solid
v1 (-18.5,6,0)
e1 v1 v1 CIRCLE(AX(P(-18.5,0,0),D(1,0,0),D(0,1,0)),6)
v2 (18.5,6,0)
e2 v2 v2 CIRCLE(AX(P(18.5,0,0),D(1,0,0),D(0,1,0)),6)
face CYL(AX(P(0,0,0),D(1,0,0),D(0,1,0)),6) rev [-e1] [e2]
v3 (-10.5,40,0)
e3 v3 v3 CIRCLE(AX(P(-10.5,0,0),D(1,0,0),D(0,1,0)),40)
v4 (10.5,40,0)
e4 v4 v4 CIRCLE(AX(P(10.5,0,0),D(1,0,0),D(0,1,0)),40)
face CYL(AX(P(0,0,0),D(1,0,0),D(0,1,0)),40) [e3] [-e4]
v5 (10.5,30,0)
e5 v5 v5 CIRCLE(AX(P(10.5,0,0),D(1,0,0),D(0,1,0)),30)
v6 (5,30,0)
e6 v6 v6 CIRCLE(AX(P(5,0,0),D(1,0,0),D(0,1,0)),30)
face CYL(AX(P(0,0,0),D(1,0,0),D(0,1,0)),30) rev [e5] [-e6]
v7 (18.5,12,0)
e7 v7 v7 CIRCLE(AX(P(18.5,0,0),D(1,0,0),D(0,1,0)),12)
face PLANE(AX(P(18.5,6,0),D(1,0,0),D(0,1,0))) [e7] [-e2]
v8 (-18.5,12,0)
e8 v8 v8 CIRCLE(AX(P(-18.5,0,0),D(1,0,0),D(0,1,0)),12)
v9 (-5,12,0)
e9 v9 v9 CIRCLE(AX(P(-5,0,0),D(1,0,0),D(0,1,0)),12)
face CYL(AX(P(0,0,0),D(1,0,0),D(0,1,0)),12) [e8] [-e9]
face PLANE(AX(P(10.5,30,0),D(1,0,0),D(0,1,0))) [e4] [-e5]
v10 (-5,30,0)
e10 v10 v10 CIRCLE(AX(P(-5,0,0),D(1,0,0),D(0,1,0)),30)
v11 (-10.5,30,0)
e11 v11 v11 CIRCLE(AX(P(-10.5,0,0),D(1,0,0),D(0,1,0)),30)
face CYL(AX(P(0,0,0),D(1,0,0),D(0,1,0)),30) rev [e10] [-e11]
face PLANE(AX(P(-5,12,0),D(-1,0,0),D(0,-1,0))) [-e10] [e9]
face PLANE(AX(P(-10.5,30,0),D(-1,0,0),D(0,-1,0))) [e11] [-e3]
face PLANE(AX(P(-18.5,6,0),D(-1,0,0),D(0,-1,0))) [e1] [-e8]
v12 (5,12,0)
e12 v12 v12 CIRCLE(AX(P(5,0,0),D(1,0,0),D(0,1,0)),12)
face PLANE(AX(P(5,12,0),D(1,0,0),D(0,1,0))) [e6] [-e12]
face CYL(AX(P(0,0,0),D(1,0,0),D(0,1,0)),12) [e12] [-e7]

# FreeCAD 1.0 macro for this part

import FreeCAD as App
import Part
import Sketcher

doc = App.newDocument("Part")
body = doc.addObject("PartDesign::Body", "Body")

sketch1 = body.newObject("Sketcher::SketchObject", "Sketch")
sketch1.AttachmentSupport = (doc.getObject("XY_Plane"), [""])
sketch1.MapMode = "FlatFace"
sketch1.addGeometry([
    Part.LineSegment(App.Vector(-18.5, 6, 0), App.Vector(18.5, 6, 0)),
    Part.LineSegment(App.Vector(18.5, 6, 0), App.Vector(18.5, 12, 0)),
    Part.LineSegment(App.Vector(18.5, 12, 0), App.Vector(5, 12, 0)),
    Part.LineSegment(App.Vector(5, 12, 0), App.Vector(5, 30, 0)),
    Part.LineSegment(App.Vector(5, 30, 0), App.Vector(10.5, 30, 0)),
    Part.LineSegment(App.Vector(10.5, 30, 0), App.Vector(10.5, 40, 0)),
    Part.LineSegment(App.Vector(10.5, 40, 0), App.Vector(-10.5, 40, 0)),
    Part.LineSegment(App.Vector(-10.5, 40, 0), App.Vector(-10.5, 30, 0)),
    Part.LineSegment(App.Vector(-10.5, 30, 0), App.Vector(-5, 30, 0)),
    Part.LineSegment(App.Vector(-5, 30, 0), App.Vector(-5, 12, 0)),
    Part.LineSegment(App.Vector(-5, 12, 0), App.Vector(-18.5, 12, 0)),
    Part.LineSegment(App.Vector(-18.5, 12, 0), App.Vector(-18.5, 6, 0)),
], False)
sketch1.addConstraint([
    Sketcher.Constraint("Coincident", 0, 2, 1, 1),
    Sketcher.Constraint("Coincident", 1, 2, 2, 1),
    Sketcher.Constraint("Coincident", 2, 2, 3, 1),
    Sketcher.Constraint("Coincident", 3, 2, 4, 1),
    Sketcher.Constraint("Coincident", 4, 2, 5, 1),
    Sketcher.Constraint("Coincident", 5, 2, 6, 1),
    Sketcher.Constraint("Coincident", 6, 2, 7, 1),
    Sketcher.Constraint("Coincident", 7, 2, 8, 1),
    Sketcher.Constraint("Coincident", 8, 2, 9, 1),
    Sketcher.Constraint("Coincident", 9, 2, 10, 1),
    Sketcher.Constraint("Coincident", 10, 2, 11, 1),
    Sketcher.Constraint("Coincident", 11, 2, 0, 1),
    Sketcher.Constraint("Horizontal", 0),
    Sketcher.Constraint("Vertical", 1),
    Sketcher.Constraint("Horizontal", 2),
    Sketcher.Constraint("Vertical", 3),
    Sketcher.Constraint("Horizontal", 4),
    Sketcher.Constraint("Vertical", 5),
    Sketcher.Constraint("Horizontal", 6),
    Sketcher.Constraint("Vertical", 7),
    Sketcher.Constraint("Horizontal", 8),
    Sketcher.Constraint("Vertical", 9),
    Sketcher.Constraint("Horizontal", 10),
    Sketcher.Constraint("Vertical", 11),
    Sketcher.Constraint("Symmetric", 4, 2, 7, 2, -2),
    Sketcher.Constraint("Symmetric", 2, 2, 9, 2, -2),
    Sketcher.Constraint("Equal", 2, 10),
    Sketcher.Constraint("DistanceX", 0, 1, 0, 2, 37.0),
    Sketcher.Constraint("DistanceX", 6, 2, 6, 1, 21.0),
    Sketcher.Constraint("DistanceY", 1, 1, 1, 2, 6.0),
    Sketcher.Constraint("DistanceY", 3, 1, 3, 2, 18.0),
    Sketcher.Constraint("DistanceY", 5, 1, 5, 2, 10.0),
    Sketcher.Constraint("DistanceX", 2, 2, 2, 1, 13.5),
    Sketcher.Constraint("DistanceY", -1, 1, 0, 2, 6.0),
])
revolution = body.newObject("PartDesign::Revolution", "Revolution")
revolution.Profile = sketch1
revolution.ReferenceAxis = (sketch1, ["H_Axis"])
revolution.Angle = 360

doc.recompute()
